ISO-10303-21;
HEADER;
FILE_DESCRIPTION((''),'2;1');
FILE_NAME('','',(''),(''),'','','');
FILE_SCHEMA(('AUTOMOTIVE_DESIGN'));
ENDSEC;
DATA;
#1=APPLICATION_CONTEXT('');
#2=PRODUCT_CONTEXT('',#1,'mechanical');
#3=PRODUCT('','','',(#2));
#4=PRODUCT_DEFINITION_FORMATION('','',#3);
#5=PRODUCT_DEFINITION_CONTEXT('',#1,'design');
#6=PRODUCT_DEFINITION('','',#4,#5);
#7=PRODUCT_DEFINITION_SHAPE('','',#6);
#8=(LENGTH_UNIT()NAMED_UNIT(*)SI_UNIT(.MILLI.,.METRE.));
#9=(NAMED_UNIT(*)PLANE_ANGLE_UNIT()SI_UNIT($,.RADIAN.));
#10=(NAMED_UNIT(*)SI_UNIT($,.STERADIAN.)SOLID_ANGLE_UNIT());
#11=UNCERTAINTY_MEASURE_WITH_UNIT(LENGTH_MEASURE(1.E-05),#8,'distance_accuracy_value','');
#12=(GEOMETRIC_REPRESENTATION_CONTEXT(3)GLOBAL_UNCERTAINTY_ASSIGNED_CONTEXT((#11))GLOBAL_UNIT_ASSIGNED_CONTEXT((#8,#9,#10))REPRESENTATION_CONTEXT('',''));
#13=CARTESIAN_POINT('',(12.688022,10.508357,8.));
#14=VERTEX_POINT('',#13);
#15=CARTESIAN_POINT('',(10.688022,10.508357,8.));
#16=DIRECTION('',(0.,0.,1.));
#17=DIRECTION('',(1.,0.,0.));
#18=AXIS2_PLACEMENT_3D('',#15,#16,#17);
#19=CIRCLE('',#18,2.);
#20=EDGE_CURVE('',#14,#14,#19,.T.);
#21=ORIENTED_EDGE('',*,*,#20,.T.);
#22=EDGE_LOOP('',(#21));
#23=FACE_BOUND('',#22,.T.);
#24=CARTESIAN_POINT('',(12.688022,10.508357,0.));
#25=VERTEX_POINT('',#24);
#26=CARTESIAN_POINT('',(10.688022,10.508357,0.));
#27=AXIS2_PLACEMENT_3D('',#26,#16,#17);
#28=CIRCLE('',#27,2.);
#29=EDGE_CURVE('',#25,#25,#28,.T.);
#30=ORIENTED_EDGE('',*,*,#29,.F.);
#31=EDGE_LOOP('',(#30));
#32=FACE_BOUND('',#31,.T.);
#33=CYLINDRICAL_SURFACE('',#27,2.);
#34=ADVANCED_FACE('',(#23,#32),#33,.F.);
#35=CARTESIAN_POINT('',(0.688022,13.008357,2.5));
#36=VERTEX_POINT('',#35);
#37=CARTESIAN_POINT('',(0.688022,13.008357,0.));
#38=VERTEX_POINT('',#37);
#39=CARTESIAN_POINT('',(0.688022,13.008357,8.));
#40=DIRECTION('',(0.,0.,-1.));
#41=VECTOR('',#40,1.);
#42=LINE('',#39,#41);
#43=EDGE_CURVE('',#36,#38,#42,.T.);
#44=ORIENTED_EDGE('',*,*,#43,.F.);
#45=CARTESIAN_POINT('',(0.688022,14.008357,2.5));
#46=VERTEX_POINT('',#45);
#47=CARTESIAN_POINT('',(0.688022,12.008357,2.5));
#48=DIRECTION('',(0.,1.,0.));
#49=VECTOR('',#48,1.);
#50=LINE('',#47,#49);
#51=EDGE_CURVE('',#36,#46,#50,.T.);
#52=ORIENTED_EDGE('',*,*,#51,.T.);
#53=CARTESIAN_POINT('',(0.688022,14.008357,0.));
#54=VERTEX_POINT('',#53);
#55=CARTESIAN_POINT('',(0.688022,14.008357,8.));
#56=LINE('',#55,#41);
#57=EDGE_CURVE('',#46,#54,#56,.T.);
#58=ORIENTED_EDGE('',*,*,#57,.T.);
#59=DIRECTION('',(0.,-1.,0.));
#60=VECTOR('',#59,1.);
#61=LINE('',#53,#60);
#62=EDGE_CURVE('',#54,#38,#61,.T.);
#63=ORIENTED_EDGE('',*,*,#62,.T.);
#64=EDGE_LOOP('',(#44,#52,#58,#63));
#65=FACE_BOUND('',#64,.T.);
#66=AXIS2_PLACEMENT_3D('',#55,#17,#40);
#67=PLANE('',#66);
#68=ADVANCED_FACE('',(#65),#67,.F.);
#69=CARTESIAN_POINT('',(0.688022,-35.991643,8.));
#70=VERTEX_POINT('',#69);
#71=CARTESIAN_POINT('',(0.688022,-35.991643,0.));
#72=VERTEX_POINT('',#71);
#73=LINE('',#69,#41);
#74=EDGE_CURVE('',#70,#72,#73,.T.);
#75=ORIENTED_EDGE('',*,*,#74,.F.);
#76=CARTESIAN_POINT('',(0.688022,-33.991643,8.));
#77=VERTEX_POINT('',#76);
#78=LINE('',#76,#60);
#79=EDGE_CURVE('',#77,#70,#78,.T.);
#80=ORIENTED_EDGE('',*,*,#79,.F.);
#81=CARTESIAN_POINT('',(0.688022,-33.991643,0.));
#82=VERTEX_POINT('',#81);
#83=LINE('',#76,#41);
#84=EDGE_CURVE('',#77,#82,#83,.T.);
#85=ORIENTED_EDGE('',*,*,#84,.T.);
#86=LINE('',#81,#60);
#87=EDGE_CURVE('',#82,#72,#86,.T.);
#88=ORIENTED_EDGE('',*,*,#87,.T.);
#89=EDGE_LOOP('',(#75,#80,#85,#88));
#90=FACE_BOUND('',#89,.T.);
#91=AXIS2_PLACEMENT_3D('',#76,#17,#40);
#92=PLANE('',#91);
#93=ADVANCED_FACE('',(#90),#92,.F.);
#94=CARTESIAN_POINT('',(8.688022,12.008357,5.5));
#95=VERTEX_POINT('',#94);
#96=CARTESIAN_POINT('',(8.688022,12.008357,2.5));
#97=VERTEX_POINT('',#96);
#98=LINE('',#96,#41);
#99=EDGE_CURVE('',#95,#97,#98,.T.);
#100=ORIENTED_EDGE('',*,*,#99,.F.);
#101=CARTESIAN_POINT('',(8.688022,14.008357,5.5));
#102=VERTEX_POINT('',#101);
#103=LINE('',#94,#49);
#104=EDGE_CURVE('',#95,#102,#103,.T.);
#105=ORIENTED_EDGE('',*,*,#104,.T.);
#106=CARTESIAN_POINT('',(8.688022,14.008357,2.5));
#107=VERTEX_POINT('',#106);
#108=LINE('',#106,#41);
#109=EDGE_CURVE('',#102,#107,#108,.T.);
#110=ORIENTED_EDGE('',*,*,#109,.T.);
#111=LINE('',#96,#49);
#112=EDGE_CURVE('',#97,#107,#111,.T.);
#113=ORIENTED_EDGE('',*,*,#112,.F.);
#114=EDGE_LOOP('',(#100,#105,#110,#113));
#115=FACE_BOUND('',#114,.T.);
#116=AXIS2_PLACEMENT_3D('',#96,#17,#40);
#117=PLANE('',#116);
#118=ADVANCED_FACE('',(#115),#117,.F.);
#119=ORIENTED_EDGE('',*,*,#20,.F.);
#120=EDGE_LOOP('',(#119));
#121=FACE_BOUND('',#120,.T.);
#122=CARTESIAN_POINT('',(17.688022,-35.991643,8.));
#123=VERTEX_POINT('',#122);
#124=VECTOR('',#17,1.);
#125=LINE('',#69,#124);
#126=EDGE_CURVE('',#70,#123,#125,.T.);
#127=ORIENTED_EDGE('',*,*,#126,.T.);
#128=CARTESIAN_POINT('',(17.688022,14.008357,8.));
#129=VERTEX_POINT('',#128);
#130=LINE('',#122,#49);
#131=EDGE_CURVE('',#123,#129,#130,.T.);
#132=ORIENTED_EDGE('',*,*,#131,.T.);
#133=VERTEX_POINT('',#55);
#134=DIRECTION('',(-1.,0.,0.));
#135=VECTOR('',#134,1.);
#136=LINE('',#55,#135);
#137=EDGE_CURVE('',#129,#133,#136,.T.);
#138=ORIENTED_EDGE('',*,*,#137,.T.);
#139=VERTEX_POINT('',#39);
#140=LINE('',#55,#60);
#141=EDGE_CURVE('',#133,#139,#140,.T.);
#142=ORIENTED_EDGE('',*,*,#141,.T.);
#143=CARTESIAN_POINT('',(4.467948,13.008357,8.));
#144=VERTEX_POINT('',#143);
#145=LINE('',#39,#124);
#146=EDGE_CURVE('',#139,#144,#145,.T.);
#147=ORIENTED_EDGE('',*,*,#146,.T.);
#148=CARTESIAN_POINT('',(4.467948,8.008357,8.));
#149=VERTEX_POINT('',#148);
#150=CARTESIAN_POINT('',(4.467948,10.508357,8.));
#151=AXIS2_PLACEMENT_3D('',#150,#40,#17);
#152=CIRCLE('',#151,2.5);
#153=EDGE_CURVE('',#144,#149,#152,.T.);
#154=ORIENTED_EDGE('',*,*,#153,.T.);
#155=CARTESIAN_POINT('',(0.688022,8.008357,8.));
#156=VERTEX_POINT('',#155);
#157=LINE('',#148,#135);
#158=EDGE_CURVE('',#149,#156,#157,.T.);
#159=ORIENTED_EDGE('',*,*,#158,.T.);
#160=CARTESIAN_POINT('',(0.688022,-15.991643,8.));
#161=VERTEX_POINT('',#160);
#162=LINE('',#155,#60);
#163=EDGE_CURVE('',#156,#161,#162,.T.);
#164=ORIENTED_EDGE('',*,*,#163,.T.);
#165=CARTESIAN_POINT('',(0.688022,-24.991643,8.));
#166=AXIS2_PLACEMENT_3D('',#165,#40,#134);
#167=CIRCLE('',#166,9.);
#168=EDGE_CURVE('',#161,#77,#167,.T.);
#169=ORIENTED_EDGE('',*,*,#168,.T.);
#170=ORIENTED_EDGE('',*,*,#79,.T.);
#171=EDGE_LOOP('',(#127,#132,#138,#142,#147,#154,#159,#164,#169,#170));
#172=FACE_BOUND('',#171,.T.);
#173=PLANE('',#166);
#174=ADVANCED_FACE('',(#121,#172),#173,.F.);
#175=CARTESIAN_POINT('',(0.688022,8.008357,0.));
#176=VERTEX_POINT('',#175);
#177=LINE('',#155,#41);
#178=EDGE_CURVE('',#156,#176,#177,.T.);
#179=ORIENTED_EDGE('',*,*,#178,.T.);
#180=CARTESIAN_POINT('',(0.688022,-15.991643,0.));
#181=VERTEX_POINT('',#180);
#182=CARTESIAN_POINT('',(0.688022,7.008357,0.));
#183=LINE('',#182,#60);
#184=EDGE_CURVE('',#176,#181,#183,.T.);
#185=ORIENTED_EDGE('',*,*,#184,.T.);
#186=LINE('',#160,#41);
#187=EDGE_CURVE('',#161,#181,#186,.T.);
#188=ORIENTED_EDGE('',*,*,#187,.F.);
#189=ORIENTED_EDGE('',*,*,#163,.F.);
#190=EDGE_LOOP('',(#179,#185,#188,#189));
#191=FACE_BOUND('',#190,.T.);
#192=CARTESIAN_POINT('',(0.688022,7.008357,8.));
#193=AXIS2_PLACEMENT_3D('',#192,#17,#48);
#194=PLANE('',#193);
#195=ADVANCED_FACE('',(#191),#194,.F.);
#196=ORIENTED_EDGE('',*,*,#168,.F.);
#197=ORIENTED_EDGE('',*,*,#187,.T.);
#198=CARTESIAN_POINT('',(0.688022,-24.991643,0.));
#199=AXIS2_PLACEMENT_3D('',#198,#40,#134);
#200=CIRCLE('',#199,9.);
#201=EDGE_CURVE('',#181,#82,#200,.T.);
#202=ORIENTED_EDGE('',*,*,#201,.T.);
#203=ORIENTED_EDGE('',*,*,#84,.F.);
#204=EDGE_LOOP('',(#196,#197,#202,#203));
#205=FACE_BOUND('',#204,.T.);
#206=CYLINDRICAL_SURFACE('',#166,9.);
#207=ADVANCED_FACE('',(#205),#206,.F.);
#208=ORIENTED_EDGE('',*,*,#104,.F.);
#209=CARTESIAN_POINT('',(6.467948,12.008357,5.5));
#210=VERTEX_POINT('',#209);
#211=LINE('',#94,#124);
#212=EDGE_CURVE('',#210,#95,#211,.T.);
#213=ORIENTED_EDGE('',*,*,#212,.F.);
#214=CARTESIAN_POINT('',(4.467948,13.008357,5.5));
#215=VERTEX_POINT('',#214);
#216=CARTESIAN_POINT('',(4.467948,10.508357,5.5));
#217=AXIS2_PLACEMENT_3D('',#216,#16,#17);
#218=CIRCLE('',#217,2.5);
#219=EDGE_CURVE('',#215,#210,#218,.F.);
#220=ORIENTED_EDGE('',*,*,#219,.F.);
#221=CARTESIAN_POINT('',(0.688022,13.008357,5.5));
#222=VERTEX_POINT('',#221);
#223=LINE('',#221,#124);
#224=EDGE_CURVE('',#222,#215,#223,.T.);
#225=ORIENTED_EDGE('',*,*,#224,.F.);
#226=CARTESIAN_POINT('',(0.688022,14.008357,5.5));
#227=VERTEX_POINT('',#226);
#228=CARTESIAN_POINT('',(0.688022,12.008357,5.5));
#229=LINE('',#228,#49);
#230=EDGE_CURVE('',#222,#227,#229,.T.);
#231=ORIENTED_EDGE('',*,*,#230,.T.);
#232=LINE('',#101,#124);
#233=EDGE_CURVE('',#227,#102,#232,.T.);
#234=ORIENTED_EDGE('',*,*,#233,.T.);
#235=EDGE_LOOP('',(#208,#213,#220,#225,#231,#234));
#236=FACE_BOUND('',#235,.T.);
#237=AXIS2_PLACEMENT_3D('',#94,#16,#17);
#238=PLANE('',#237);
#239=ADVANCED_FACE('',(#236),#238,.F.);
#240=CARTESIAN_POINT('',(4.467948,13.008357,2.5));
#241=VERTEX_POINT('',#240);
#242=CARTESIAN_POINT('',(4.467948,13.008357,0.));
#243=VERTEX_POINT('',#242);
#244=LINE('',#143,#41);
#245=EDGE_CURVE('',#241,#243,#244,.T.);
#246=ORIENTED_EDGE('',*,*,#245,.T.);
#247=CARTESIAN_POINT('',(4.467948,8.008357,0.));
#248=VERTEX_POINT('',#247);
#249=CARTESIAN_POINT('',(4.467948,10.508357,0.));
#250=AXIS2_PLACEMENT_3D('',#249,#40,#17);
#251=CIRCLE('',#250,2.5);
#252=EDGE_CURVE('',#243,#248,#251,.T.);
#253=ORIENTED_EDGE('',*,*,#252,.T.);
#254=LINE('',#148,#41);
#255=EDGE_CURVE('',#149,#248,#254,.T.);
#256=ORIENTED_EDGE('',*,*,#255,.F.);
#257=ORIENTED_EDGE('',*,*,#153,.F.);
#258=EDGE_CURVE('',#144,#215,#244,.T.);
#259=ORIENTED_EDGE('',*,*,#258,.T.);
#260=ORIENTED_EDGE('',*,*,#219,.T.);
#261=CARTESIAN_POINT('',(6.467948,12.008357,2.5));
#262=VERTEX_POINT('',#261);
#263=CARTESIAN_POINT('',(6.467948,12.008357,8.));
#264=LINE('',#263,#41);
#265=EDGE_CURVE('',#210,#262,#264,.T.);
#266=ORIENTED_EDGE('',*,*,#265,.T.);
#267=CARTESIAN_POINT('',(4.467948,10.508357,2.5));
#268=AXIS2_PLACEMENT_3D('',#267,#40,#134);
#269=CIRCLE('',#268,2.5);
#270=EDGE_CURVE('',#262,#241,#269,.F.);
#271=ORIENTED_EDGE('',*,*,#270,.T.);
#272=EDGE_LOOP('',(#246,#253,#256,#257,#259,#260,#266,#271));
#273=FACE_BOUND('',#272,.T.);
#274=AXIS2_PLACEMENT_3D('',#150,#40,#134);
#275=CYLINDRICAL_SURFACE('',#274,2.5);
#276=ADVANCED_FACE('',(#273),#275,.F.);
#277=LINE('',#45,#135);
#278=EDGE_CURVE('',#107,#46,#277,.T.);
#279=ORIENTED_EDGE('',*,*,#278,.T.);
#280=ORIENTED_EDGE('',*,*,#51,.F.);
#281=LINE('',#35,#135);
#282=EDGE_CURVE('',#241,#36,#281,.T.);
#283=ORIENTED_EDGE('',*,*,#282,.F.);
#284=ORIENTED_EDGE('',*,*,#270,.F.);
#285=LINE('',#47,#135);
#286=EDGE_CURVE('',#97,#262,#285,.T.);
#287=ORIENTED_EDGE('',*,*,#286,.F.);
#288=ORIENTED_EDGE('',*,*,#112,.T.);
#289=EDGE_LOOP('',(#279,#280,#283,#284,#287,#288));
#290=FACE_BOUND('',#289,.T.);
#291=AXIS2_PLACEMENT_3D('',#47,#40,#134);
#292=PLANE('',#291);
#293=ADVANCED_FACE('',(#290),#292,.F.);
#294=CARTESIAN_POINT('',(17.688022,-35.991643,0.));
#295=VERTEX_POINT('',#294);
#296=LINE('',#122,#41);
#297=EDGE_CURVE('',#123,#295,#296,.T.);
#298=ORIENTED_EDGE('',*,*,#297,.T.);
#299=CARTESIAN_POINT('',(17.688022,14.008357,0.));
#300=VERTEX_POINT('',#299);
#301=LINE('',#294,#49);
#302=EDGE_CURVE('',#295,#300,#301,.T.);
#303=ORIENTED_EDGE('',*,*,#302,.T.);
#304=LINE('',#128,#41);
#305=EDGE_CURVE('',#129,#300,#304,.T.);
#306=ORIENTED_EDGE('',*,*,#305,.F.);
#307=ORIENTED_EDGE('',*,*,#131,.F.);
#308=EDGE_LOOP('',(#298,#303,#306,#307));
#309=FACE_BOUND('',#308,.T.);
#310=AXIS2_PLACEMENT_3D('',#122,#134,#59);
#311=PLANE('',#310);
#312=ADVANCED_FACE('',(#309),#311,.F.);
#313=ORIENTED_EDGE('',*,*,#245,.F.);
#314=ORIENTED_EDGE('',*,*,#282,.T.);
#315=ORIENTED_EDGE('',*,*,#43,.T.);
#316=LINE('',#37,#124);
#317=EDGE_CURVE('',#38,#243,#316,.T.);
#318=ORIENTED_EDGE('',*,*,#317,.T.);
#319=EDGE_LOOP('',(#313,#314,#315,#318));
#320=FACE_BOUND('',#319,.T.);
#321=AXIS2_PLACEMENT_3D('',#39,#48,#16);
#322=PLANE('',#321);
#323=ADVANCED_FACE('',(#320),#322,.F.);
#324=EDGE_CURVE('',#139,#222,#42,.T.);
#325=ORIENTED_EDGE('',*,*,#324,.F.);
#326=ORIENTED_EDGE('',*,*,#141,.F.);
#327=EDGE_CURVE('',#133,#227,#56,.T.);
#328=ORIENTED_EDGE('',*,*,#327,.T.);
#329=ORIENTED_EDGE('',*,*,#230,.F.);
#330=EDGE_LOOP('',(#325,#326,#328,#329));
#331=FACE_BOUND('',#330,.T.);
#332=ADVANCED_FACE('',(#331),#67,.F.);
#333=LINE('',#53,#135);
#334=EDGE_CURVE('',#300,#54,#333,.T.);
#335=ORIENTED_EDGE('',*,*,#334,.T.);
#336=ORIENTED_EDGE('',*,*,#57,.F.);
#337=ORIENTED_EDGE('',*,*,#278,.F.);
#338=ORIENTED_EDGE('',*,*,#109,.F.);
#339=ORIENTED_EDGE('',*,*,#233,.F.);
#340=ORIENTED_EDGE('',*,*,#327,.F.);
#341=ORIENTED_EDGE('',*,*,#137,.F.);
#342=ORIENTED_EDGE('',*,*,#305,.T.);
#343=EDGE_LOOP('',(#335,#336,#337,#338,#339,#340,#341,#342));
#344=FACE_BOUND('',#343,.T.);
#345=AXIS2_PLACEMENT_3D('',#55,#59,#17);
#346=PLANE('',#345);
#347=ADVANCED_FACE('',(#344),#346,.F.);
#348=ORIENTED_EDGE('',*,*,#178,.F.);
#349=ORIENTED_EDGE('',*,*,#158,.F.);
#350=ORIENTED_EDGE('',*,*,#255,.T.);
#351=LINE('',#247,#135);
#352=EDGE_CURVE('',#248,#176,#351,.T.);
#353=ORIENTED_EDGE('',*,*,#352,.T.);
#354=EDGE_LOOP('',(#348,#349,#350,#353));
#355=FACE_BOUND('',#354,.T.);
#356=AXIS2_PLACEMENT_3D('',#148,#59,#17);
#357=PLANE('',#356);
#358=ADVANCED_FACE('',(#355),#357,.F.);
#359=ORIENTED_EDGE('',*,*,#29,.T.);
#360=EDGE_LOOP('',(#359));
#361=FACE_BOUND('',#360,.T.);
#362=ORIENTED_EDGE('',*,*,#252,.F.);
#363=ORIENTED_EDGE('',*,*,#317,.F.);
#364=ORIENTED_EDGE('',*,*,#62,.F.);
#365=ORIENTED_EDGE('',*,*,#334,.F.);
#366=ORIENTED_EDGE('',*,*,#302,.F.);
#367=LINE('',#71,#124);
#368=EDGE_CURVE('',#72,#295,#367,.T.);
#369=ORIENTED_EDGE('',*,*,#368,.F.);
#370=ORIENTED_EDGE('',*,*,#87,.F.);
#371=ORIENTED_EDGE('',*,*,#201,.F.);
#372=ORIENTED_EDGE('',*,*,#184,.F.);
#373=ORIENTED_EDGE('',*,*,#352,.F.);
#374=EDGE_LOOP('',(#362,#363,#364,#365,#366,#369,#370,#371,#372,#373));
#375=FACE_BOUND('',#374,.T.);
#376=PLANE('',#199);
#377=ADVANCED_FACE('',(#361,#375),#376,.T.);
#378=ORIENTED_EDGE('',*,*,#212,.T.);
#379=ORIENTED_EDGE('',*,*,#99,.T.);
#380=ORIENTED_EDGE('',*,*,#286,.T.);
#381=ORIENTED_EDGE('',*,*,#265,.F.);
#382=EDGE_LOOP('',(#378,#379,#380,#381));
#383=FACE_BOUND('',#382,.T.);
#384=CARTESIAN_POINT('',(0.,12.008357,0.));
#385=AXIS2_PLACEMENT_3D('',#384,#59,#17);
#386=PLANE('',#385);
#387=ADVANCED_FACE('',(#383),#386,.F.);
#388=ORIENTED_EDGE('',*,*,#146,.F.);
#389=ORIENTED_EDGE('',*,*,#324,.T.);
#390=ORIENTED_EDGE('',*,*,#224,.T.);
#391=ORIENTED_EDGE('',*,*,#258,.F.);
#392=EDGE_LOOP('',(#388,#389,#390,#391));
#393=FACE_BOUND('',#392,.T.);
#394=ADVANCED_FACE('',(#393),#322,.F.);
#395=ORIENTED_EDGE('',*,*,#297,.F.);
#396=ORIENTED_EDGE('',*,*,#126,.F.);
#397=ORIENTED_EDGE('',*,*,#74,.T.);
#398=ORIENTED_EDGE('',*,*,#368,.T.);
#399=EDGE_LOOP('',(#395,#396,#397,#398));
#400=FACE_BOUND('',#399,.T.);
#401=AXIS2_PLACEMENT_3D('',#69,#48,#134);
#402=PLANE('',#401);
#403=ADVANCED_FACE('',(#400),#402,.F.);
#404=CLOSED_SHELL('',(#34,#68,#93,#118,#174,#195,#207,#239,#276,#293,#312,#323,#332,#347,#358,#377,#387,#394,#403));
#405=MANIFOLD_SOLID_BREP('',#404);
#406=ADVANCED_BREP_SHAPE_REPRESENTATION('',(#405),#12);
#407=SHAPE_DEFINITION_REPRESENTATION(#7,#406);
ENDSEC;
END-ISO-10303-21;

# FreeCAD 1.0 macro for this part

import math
import FreeCAD as App
import Part
import Sketcher
Q = App.Units.Quantity


def add_polygon(sketch, points):
    """Adds a closed chain of lines whose ends are joined by coincident constraints."""
    first, n = sketch.GeometryCount, len(points)
    for a, b in zip(points, points[1:] + points[:1]):
        sketch.addGeometry(Part.LineSegment(App.Vector(*a, 0), App.Vector(*b, 0)), False)
    for i in range(n):
        sketch.addConstraint(Sketcher.Constraint("Coincident", first + i, 2, first + (i + 1) % n, 1))

doc = App.newDocument("Part")
body = doc.addObject("PartDesign::Body", "Body")

sketch1 = body.newObject("Sketcher::SketchObject", "Sketch")
sketch1.AttachmentSupport = (doc.getObject("XY_Plane"), [""])
sketch1.MapMode = "FlatFace"
sketch1.addGeometry([
    Part.ArcOfCircle(Part.Circle(App.Vector(0.7, -25, 0), App.Vector(0, 0, 1), 9), math.radians(-90), math.radians(90)),
    Part.LineSegment(App.Vector(0.7, -34, 0), App.Vector(0.7, -36, 0)),
    Part.LineSegment(App.Vector(0.7, -36, 0), App.Vector(17.7, -36, 0)),
    Part.LineSegment(App.Vector(17.7, -36, 0), App.Vector(17.7, 14, 0)),
    Part.LineSegment(App.Vector(17.7, 14, 0), App.Vector(0.7, 14, 0)),
    Part.LineSegment(App.Vector(0.7, 14, 0), App.Vector(0.7, 13, 0)),
    Part.LineSegment(App.Vector(0.7, 13, 0), App.Vector(4.5, 13, 0)),
    Part.ArcOfCircle(Part.Circle(App.Vector(4.5, 10.5, 0), App.Vector(0, 0, 1), 2.5), math.radians(-90), math.radians(90)),
    Part.LineSegment(App.Vector(4.5, 8, 0), App.Vector(0.7, 8, 0)),
    Part.LineSegment(App.Vector(0.7, 8, 0), App.Vector(0.7, -16, 0)),
], False)
sketch1.addConstraint([
    Sketcher.Constraint("Coincident", 0, 1, 1, 1),
    Sketcher.Constraint("Coincident", 1, 2, 2, 1),
    Sketcher.Constraint("Coincident", 2, 2, 3, 1),
    Sketcher.Constraint("Coincident", 3, 2, 4, 1),
    Sketcher.Constraint("Coincident", 4, 2, 5, 1),
    Sketcher.Constraint("Coincident", 5, 2, 6, 1),
    Sketcher.Constraint("Tangent", 6, 2, 7, 2),
    Sketcher.Constraint("Tangent", 7, 1, 8, 1),
    Sketcher.Constraint("Coincident", 8, 2, 9, 1),
    Sketcher.Constraint("Coincident", 9, 2, 0, 2),
    Sketcher.Constraint("Vertical", 1),
    Sketcher.Constraint("Horizontal", 2),
    Sketcher.Constraint("Vertical", 3),
    Sketcher.Constraint("Horizontal", 4),
    Sketcher.Constraint("Vertical", 5),
    Sketcher.Constraint("Horizontal", 6),
    Sketcher.Constraint("Horizontal", 8),
    Sketcher.Constraint("Vertical", 9),
    Sketcher.Constraint("Vertical", 1, 2, 4, 2),
    Sketcher.Constraint("Vertical", 5, 2, 8, 2),
    Sketcher.Constraint("Radius", 0, Q("9 mm")),
    Sketcher.Constraint("Radius", 7, Q("2.5 mm")),
    Sketcher.Constraint("DistanceX", 2, 1, 2, 2, Q("17 mm")),
    Sketcher.Constraint("DistanceY", 1, 2, 1, 1, Q("2 mm")),
    Sketcher.Constraint("DistanceY", 3, 1, 3, 2, Q("50 mm")),
    Sketcher.Constraint("DistanceY", 5, 2, 5, 1, Q("1 mm")),
    Sketcher.Constraint("DistanceX", 0, 3, 2, 2, Q("17 mm")),
    Sketcher.Constraint("DistanceX", 6, 1, 6, 2, Q("3.779926 mm")),
    Sketcher.Constraint("DistanceX", -1, 1, 7, 3, Q("4.467948 mm")),
    Sketcher.Constraint("DistanceY", 0, 3, -1, 1, Q("24.991643 mm")),
])
pad1 = body.newObject("PartDesign::Pad", "Pad")
pad1.Profile = sketch1
pad1.Length = 8

sketch2 = body.newObject("Sketcher::SketchObject", "Sketch001")
sketch2.AttachmentSupport = (doc.getObject("XY_Plane"), [""])
sketch2.MapMode = "FlatFace"
sketch2.AttachmentOffset = App.Placement(App.Vector(0, 0, 8), App.Rotation())
sketch2.addGeometry(Part.Circle(App.Vector(10.7, 10.5, 0), App.Vector(0, 0, 1), 2), False)
sketch2.addConstraint([
    Sketcher.Constraint("Diameter", 0, Q("4 mm")),
    Sketcher.Constraint("DistanceX", -1, 1, 0, 3, Q("10.688022 mm")),
    Sketcher.Constraint("DistanceY", -1, 1, 0, 3, Q("10.508357 mm")),
])
pocket1 = body.newObject("PartDesign::Pocket", "Pocket")
pocket1.Profile = sketch2
pocket1.Length = 8

sketch3 = body.newObject("Sketcher::SketchObject", "Sketch002")
sketch3.AttachmentSupport = (doc.getObject("XZ_Plane"), [""])
sketch3.MapMode = "FlatFace"
sketch3.AttachmentOffset = App.Placement(App.Vector(0, 0, -14.008357), App.Rotation())
add_polygon(sketch3, [(0.7, 2.5), (0.7, 5.5), (8.7, 5.5), (8.7, 2.5)])
sketch3.addConstraint([
    Sketcher.Constraint("Vertical", 0),
    Sketcher.Constraint("Horizontal", 1),
    Sketcher.Constraint("Vertical", 2),
    Sketcher.Constraint("Horizontal", 3),
    Sketcher.Constraint("DistanceX", 1, 1, 1, 2, Q("8 mm")),
    Sketcher.Constraint("DistanceY", 0, 1, 0, 2, Q("3 mm")),
    Sketcher.Constraint("DistanceY", -1, 1, 0, 2, Q("5.5 mm")),
    Sketcher.Constraint("DistanceX", -1, 1, 0, 2, Q("0.688022 mm")),
])
pocket2 = body.newObject("PartDesign::Pocket", "Pocket001")
pocket2.Profile = sketch3
pocket2.Length = 2
pocket2.Reversed = True

doc.recompute()
